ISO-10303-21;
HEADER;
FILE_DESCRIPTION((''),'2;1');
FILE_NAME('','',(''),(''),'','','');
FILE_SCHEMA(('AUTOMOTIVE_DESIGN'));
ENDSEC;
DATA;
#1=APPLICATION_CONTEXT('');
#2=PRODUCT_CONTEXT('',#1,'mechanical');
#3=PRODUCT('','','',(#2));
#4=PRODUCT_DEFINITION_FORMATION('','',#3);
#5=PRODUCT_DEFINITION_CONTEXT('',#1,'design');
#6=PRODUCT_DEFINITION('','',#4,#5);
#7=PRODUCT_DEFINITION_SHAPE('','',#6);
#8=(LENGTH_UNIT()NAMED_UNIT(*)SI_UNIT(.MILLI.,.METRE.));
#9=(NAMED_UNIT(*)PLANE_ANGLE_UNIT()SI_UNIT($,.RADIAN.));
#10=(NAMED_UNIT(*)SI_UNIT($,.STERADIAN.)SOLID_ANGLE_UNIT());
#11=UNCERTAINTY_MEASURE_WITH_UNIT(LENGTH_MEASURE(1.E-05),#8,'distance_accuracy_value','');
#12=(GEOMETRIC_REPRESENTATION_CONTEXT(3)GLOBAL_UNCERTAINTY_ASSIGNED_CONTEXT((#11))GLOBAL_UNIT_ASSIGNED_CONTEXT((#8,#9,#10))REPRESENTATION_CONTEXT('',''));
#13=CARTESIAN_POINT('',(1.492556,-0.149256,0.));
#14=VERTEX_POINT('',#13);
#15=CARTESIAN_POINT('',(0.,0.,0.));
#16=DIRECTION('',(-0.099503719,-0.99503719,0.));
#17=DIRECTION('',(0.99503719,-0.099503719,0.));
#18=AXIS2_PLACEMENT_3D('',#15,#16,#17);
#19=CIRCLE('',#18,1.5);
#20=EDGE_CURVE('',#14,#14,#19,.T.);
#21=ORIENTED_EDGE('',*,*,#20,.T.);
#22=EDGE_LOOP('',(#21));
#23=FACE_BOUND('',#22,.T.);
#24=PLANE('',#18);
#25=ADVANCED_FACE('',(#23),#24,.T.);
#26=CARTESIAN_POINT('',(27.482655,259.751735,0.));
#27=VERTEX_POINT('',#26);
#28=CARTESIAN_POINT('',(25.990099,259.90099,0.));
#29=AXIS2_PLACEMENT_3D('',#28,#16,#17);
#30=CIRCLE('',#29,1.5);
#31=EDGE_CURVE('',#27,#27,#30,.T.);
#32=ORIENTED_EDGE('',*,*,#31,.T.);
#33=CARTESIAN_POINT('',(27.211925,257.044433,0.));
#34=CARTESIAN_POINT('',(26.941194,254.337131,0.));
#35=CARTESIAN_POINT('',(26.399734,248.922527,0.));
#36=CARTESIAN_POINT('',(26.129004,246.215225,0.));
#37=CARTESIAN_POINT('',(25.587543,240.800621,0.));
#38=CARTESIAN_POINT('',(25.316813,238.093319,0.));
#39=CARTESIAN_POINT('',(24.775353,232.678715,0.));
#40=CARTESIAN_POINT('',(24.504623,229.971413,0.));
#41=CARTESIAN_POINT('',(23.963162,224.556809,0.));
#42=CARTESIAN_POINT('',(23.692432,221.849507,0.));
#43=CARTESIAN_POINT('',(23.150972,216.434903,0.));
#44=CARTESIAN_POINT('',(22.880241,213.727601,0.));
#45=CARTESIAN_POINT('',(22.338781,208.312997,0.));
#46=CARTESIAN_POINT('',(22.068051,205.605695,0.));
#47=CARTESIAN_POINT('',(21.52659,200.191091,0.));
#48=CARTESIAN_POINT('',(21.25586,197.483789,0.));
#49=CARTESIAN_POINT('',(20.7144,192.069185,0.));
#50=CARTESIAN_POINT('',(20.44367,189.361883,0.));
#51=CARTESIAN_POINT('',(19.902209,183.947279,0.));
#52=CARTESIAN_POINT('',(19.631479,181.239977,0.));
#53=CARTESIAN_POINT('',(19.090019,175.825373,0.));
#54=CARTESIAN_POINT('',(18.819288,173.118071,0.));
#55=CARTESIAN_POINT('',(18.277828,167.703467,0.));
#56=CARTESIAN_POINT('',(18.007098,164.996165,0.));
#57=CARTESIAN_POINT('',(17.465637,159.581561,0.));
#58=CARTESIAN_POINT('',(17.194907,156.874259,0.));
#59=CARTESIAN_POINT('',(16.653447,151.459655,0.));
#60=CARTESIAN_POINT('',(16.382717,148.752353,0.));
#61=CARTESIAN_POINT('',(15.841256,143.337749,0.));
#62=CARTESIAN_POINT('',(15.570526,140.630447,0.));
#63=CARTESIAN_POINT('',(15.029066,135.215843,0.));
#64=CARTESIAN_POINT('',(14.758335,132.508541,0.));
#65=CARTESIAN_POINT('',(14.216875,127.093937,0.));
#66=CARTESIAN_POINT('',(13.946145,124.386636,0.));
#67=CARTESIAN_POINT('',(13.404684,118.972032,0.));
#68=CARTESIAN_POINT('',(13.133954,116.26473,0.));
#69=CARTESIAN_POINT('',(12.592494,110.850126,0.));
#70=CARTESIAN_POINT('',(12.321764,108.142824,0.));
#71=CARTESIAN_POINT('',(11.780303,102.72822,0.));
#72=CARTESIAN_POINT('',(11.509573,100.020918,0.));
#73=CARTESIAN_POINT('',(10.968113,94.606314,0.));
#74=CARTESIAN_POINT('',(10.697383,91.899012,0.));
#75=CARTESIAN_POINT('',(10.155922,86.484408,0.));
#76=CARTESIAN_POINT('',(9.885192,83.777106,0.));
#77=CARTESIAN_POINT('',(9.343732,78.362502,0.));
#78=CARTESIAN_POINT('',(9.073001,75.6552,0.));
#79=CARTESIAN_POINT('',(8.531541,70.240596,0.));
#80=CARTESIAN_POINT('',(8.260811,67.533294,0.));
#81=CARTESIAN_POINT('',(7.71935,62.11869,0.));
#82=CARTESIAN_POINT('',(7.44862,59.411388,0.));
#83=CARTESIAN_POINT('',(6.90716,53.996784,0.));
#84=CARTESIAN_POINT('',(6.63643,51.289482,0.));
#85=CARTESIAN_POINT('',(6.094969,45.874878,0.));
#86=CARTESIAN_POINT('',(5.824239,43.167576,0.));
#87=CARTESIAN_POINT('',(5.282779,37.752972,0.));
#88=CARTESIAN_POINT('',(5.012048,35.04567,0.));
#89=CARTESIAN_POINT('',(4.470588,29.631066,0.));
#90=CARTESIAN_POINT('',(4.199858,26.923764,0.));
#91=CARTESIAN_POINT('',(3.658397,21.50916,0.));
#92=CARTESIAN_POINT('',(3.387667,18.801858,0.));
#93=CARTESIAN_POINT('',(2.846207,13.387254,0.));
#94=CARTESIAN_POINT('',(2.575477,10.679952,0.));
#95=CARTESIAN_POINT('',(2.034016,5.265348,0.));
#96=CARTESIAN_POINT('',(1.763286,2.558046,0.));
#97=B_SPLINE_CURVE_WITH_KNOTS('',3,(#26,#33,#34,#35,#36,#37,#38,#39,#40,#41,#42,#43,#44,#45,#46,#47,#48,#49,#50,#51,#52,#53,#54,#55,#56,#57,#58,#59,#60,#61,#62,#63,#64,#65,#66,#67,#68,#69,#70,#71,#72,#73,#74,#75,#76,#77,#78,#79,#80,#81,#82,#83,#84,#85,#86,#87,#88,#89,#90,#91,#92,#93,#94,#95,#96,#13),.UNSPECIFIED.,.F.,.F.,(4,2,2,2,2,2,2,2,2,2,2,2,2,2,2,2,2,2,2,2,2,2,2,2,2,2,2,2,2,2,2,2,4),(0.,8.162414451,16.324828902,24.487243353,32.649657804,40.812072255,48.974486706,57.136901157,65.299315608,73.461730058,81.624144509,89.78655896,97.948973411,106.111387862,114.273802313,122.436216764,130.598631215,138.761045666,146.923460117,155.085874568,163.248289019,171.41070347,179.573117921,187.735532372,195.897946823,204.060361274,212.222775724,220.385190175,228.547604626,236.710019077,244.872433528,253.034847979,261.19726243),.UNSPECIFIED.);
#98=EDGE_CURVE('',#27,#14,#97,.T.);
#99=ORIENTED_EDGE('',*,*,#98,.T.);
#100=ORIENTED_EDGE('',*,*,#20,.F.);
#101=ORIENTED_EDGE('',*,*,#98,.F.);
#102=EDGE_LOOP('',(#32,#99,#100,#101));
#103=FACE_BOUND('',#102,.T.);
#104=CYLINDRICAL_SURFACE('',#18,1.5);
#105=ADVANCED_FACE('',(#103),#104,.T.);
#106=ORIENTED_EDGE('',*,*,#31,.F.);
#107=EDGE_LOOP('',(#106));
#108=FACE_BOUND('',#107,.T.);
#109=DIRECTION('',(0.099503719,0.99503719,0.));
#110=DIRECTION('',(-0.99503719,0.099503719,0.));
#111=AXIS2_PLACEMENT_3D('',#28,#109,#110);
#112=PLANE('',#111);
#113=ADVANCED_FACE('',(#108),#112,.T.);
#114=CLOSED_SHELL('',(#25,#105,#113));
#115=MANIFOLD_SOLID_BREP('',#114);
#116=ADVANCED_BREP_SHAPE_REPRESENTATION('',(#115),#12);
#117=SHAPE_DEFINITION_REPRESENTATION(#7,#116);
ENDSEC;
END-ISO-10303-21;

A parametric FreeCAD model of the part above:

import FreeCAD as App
import Part
import Sketcher


def add_polygon(sketch, points):
    """Adds a closed chain of lines whose ends are joined by coincident constraints."""
    first, n = sketch.GeometryCount, len(points)
    for a, b in zip(points, points[1:] + points[:1]):
        sketch.addGeometry(Part.LineSegment(App.Vector(*a, 0), App.Vector(*b, 0)), False)
    for i in range(n):
        sketch.addConstraint(Sketcher.Constraint("Coincident", first + i, 2, first + (i + 1) % n, 1))

doc = App.newDocument("Part")
params = doc.addObject("Spreadsheet::Sheet", "Params")
for row, (alias, value) in enumerate([
    ("sketch1_length", "1.5 mm"),
    ("revolution_angle", "360 deg"),
], start=1):
    params.set(f"A{row}", alias)
    params.set(f"B{row}", "=" + value)
    params.setAlias(f"B{row}", alias)

body = doc.addObject("PartDesign::Body", "Body")

sketch1 = body.newObject("Sketcher::SketchObject", "Sketch")
sketch1.AttachmentSupport = (doc.getObject("XY_Plane"), [""])
sketch1.MapMode = "FlatFace"
add_polygon(sketch1, [(26, 259.9), (0, 0), (1.5, -0.1), (27.5, 259.8)])
sketch1.addGeometry(Part.LineSegment(App.Vector(0, 0, 0), App.Vector(26, 259.9, 0)), True)
sketch1.addConstraint([
    Sketcher.Constraint("Coincident", 0, 2, -1, 1),
    Sketcher.Constraint("Coincident", 4, 1, -1, 1),
    Sketcher.Constraint("Coincident", 4, 2, 3, 2),
    Sketcher.Constraint("Perpendicular", 0, 1),
    Sketcher.Constraint("Perpendicular", 1, 2),
    Sketcher.Constraint("Perpendicular", 2, 3),
    Sketcher.Constraint("Distance", 1, 1.5),
    Sketcher.Constraint("DistanceX", -1, 1, 3, 2, 25.990099),
    Sketcher.Constraint("DistanceY", -1, 1, 3, 2, 259.90099),
])
sketch1.setExpression("Constraints[10]", "Params.sketch1_length")
revolution = body.newObject("PartDesign::Revolution", "Revolution")
revolution.Profile = sketch1
revolution.ReferenceAxis = (sketch1, ["Axis0"])
revolution.setExpression("Angle", "Params.revolution_angle")

doc.recompute()
